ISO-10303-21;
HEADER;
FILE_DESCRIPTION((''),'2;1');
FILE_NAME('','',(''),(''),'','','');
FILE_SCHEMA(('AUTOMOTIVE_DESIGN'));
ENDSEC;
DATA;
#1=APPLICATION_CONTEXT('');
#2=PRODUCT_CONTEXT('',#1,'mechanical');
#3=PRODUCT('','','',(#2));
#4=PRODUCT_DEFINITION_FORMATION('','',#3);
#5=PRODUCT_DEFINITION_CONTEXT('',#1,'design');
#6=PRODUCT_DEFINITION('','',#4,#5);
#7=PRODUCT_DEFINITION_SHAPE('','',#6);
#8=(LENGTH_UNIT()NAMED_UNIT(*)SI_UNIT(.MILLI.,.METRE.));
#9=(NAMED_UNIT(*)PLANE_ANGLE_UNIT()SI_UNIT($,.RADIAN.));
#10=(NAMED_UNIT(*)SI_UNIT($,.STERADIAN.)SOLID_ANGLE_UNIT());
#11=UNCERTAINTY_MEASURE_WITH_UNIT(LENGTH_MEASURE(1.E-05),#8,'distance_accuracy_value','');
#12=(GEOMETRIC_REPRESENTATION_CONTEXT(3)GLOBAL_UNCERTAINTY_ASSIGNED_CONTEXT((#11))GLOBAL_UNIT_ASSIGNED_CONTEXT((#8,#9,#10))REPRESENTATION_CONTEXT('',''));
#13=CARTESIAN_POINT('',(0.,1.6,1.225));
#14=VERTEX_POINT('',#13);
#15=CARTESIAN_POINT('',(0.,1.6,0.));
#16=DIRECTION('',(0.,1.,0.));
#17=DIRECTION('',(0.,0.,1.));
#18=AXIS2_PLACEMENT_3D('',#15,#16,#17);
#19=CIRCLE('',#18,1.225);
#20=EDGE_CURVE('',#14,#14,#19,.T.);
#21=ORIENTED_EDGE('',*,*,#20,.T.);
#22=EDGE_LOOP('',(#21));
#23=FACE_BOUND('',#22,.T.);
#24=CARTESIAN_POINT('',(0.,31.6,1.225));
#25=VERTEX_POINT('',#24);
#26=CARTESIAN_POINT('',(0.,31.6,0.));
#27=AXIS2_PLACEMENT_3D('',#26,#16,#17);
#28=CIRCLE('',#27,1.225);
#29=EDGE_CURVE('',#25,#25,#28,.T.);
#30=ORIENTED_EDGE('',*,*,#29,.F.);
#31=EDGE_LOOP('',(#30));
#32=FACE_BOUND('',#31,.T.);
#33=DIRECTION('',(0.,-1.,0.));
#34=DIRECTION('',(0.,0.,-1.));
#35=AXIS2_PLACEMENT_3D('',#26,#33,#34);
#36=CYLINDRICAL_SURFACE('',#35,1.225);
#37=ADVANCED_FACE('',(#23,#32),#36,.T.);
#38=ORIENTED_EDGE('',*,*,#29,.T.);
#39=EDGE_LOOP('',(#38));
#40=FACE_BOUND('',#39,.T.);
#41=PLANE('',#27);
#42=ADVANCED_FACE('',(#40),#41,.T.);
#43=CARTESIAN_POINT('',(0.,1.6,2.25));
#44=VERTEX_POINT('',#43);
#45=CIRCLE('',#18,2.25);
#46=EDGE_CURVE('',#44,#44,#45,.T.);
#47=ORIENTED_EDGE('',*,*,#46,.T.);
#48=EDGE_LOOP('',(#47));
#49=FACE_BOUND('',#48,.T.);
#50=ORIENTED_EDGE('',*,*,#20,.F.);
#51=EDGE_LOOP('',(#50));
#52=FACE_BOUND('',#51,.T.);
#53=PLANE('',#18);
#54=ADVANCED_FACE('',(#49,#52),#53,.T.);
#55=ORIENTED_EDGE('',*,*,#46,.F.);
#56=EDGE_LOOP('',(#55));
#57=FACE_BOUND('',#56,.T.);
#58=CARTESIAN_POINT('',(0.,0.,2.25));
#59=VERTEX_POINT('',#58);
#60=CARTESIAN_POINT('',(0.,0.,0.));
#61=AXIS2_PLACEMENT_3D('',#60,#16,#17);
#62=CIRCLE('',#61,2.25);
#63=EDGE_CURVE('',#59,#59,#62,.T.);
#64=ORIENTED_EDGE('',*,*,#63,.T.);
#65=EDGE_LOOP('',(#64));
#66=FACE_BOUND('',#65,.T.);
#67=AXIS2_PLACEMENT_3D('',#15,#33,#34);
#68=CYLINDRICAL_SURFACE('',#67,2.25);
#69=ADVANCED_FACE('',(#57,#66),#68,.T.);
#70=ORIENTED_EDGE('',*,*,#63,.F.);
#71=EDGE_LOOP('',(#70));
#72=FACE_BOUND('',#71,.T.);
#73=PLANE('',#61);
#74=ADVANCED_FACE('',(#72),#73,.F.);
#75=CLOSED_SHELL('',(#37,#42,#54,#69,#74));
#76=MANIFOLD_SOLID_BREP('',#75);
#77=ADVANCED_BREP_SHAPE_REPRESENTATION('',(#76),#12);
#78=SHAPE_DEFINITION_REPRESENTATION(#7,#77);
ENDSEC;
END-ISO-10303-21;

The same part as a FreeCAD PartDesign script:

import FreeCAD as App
import Part
import Sketcher
from FreeCAD import Vector
Q = App.Units.Quantity

doc = App.newDocument("Part")
body = doc.addObject("PartDesign::Body", "Body")

# Sketch on XZ plane
sketch1 = body.newObject("Sketcher::SketchObject", "Sketch")
sketch1.AttachmentSupport = (doc.getObject("XZ_Plane"), [""])
sketch1.MapMode = "FlatFace"
sketch1.addGeometry(Part.Circle(Vector(0, 0, 0), Vector(0, 0, 1), 2.2), False)
sketch1.addConstraint([
    Sketcher.Constraint("Coincident", 0, 3, -1, 1),
    Sketcher.Constraint("Diameter", 0, Q("4.5 mm")),
])
pad1 = body.newObject("PartDesign::Pad", "Pad")
pad1.Profile = sketch1
pad1.Length = 1.6
pad1.Reversed = True

# Sketch on XZ plane
sketch2 = body.newObject("Sketcher::SketchObject", "Sketch001")
sketch2.AttachmentSupport = (doc.getObject("XZ_Plane"), [""])
sketch2.MapMode = "FlatFace"
sketch2.AttachmentOffset = App.Placement(Vector(0, 0, -1.6), App.Rotation())
sketch2.addGeometry(Part.Circle(Vector(0, 0, 0), Vector(0, 0, 1), 1.2), False)
sketch2.addConstraint([
    Sketcher.Constraint("Coincident", 0, 3, -1, 1),
    Sketcher.Constraint("Diameter", 0, Q("2.45 mm")),
])
pad2 = body.newObject("PartDesign::Pad", "Pad001")
pad2.Profile = sketch2
pad2.Length = 30
pad2.Reversed = True

doc.recompute()
